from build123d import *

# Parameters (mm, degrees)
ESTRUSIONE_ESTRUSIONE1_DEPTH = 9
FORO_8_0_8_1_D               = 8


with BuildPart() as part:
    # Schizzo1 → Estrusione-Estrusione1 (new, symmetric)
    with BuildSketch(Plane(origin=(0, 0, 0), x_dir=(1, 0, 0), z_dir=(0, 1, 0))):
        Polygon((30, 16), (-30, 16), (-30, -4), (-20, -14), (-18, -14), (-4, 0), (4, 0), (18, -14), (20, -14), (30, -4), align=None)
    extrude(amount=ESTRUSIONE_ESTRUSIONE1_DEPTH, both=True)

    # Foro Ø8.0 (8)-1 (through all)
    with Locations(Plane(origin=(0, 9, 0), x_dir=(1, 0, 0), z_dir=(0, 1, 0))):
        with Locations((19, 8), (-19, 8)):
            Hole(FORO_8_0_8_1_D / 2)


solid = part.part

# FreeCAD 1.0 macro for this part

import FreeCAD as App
import Part
import Sketcher
Q = App.Units.Quantity

doc = App.newDocument("Part")
body = doc.addObject("PartDesign::Body", "Body")

# Sketch on XZ plane
sketch1 = body.newObject("Sketcher::SketchObject", "Sketch")
sketch1.AttachmentSupport = (doc.getObject("XZ_Plane"), [""])
sketch1.MapMode = "FlatFace"
sketch1.addGeometry([
    Part.LineSegment(App.Vector(30, -16, 0), App.Vector(-30, -16, 0)),  # 0
    Part.LineSegment(App.Vector(-30, -16, 0), App.Vector(-30, 4, 0)),  # 1
    Part.LineSegment(App.Vector(-30, 4, 0), App.Vector(-20, 14, 0)),  # 2
    Part.LineSegment(App.Vector(-20, 14, 0), App.Vector(-18, 14, 0)),  # 3
    Part.LineSegment(App.Vector(-18, 14, 0), App.Vector(-4, 0, 0)),  # 4
    Part.LineSegment(App.Vector(-4, 0, 0), App.Vector(4, 0, 0)),  # 5
    Part.LineSegment(App.Vector(4, 0, 0), App.Vector(18, 14, 0)),  # 6
    Part.LineSegment(App.Vector(18, 14, 0), App.Vector(20, 14, 0)),  # 7
    Part.LineSegment(App.Vector(20, 14, 0), App.Vector(30, 4, 0)),  # 8
    Part.LineSegment(App.Vector(30, 4, 0), App.Vector(30, -16, 0)),  # 9
], False)
sketch1.addConstraint([
    Sketcher.Constraint("Coincident", 0, 2, 1, 1),
    Sketcher.Constraint("Coincident", 1, 2, 2, 1),
    Sketcher.Constraint("Coincident", 2, 2, 3, 1),
    Sketcher.Constraint("Coincident", 3, 2, 4, 1),
    Sketcher.Constraint("Coincident", 4, 2, 5, 1),
    Sketcher.Constraint("Coincident", 5, 2, 6, 1),
    Sketcher.Constraint("Coincident", 6, 2, 7, 1),
    Sketcher.Constraint("Coincident", 7, 2, 8, 1),
    Sketcher.Constraint("Coincident", 8, 2, 9, 1),
    Sketcher.Constraint("Coincident", 9, 2, 0, 1),
    Sketcher.Constraint("Horizontal", 0),
    Sketcher.Constraint("Vertical", 1),
    Sketcher.Constraint("Horizontal", 3),
    Sketcher.Constraint("Horizontal", 5),
    Sketcher.Constraint("Horizontal", 7),
    Sketcher.Constraint("Vertical", 9),
    Sketcher.Constraint("Symmetric", 4, 2, 5, 2, -1, 1),
    Sketcher.Constraint("Symmetric", 3, 2, 6, 2, -2),
    Sketcher.Constraint("Symmetric", 1, 2, 8, 2, -2),
    Sketcher.Constraint("Perpendicular", 2, 4),
    Sketcher.Constraint("Perpendicular", 4, 6),
    Sketcher.Constraint("Perpendicular", 6, 8),
    Sketcher.Constraint("DistanceX", 0, 2, 0, 1, Q("60 mm")),
    Sketcher.Constraint("DistanceX", 3, 1, 3, 2, Q("2 mm")),
    Sketcher.Constraint("DistanceX", 5, 1, 5, 2, Q("8 mm")),
    Sketcher.Constraint("DistanceY", 1, 1, 1, 2, Q("20 mm")),
    Sketcher.Constraint("DistanceY", 0, 2, -1, 1, Q("16 mm")),
])
pad1 = body.newObject("PartDesign::Pad", "Pad")
pad1.Profile = sketch1
pad1.Length = 18
pad1.Midplane = True

# Sketch on XZ plane
sketch2 = body.newObject("Sketcher::SketchObject", "Sketch001")
sketch2.AttachmentSupport = (doc.getObject("XZ_Plane"), [""])
sketch2.MapMode = "FlatFace"
sketch2.AttachmentOffset = App.Placement(App.Vector(0, 0, -9), App.Rotation())
sketch2.addGeometry([
    Part.Circle(App.Vector(19, -8, 0), App.Vector(0, 0, 1), 4),
    Part.Circle(App.Vector(-19, -8, 0), App.Vector(0, 0, 1), 4),
], False)
sketch2.addConstraint([
    Sketcher.Constraint("Equal", 0, 1),
    Sketcher.Constraint("Symmetric", 0, 3, 1, 3, -2),
    Sketcher.Constraint("Diameter", 0, Q("8 mm")),
    Sketcher.Constraint("DistanceX", -1, 1, 0, 3, Q("19 mm")),
    Sketcher.Constraint("DistanceY", 0, 3, -1, 1, Q("8 mm")),
])
doc.recompute()
hole = body.newObject("PartDesign::Hole", "Hole")
hole.Profile = sketch2
hole.ThreadType = "None"
hole.Diameter = 8
hole.DepthType = "ThroughAll"
hole.Reversed = True

doc.recompute()
